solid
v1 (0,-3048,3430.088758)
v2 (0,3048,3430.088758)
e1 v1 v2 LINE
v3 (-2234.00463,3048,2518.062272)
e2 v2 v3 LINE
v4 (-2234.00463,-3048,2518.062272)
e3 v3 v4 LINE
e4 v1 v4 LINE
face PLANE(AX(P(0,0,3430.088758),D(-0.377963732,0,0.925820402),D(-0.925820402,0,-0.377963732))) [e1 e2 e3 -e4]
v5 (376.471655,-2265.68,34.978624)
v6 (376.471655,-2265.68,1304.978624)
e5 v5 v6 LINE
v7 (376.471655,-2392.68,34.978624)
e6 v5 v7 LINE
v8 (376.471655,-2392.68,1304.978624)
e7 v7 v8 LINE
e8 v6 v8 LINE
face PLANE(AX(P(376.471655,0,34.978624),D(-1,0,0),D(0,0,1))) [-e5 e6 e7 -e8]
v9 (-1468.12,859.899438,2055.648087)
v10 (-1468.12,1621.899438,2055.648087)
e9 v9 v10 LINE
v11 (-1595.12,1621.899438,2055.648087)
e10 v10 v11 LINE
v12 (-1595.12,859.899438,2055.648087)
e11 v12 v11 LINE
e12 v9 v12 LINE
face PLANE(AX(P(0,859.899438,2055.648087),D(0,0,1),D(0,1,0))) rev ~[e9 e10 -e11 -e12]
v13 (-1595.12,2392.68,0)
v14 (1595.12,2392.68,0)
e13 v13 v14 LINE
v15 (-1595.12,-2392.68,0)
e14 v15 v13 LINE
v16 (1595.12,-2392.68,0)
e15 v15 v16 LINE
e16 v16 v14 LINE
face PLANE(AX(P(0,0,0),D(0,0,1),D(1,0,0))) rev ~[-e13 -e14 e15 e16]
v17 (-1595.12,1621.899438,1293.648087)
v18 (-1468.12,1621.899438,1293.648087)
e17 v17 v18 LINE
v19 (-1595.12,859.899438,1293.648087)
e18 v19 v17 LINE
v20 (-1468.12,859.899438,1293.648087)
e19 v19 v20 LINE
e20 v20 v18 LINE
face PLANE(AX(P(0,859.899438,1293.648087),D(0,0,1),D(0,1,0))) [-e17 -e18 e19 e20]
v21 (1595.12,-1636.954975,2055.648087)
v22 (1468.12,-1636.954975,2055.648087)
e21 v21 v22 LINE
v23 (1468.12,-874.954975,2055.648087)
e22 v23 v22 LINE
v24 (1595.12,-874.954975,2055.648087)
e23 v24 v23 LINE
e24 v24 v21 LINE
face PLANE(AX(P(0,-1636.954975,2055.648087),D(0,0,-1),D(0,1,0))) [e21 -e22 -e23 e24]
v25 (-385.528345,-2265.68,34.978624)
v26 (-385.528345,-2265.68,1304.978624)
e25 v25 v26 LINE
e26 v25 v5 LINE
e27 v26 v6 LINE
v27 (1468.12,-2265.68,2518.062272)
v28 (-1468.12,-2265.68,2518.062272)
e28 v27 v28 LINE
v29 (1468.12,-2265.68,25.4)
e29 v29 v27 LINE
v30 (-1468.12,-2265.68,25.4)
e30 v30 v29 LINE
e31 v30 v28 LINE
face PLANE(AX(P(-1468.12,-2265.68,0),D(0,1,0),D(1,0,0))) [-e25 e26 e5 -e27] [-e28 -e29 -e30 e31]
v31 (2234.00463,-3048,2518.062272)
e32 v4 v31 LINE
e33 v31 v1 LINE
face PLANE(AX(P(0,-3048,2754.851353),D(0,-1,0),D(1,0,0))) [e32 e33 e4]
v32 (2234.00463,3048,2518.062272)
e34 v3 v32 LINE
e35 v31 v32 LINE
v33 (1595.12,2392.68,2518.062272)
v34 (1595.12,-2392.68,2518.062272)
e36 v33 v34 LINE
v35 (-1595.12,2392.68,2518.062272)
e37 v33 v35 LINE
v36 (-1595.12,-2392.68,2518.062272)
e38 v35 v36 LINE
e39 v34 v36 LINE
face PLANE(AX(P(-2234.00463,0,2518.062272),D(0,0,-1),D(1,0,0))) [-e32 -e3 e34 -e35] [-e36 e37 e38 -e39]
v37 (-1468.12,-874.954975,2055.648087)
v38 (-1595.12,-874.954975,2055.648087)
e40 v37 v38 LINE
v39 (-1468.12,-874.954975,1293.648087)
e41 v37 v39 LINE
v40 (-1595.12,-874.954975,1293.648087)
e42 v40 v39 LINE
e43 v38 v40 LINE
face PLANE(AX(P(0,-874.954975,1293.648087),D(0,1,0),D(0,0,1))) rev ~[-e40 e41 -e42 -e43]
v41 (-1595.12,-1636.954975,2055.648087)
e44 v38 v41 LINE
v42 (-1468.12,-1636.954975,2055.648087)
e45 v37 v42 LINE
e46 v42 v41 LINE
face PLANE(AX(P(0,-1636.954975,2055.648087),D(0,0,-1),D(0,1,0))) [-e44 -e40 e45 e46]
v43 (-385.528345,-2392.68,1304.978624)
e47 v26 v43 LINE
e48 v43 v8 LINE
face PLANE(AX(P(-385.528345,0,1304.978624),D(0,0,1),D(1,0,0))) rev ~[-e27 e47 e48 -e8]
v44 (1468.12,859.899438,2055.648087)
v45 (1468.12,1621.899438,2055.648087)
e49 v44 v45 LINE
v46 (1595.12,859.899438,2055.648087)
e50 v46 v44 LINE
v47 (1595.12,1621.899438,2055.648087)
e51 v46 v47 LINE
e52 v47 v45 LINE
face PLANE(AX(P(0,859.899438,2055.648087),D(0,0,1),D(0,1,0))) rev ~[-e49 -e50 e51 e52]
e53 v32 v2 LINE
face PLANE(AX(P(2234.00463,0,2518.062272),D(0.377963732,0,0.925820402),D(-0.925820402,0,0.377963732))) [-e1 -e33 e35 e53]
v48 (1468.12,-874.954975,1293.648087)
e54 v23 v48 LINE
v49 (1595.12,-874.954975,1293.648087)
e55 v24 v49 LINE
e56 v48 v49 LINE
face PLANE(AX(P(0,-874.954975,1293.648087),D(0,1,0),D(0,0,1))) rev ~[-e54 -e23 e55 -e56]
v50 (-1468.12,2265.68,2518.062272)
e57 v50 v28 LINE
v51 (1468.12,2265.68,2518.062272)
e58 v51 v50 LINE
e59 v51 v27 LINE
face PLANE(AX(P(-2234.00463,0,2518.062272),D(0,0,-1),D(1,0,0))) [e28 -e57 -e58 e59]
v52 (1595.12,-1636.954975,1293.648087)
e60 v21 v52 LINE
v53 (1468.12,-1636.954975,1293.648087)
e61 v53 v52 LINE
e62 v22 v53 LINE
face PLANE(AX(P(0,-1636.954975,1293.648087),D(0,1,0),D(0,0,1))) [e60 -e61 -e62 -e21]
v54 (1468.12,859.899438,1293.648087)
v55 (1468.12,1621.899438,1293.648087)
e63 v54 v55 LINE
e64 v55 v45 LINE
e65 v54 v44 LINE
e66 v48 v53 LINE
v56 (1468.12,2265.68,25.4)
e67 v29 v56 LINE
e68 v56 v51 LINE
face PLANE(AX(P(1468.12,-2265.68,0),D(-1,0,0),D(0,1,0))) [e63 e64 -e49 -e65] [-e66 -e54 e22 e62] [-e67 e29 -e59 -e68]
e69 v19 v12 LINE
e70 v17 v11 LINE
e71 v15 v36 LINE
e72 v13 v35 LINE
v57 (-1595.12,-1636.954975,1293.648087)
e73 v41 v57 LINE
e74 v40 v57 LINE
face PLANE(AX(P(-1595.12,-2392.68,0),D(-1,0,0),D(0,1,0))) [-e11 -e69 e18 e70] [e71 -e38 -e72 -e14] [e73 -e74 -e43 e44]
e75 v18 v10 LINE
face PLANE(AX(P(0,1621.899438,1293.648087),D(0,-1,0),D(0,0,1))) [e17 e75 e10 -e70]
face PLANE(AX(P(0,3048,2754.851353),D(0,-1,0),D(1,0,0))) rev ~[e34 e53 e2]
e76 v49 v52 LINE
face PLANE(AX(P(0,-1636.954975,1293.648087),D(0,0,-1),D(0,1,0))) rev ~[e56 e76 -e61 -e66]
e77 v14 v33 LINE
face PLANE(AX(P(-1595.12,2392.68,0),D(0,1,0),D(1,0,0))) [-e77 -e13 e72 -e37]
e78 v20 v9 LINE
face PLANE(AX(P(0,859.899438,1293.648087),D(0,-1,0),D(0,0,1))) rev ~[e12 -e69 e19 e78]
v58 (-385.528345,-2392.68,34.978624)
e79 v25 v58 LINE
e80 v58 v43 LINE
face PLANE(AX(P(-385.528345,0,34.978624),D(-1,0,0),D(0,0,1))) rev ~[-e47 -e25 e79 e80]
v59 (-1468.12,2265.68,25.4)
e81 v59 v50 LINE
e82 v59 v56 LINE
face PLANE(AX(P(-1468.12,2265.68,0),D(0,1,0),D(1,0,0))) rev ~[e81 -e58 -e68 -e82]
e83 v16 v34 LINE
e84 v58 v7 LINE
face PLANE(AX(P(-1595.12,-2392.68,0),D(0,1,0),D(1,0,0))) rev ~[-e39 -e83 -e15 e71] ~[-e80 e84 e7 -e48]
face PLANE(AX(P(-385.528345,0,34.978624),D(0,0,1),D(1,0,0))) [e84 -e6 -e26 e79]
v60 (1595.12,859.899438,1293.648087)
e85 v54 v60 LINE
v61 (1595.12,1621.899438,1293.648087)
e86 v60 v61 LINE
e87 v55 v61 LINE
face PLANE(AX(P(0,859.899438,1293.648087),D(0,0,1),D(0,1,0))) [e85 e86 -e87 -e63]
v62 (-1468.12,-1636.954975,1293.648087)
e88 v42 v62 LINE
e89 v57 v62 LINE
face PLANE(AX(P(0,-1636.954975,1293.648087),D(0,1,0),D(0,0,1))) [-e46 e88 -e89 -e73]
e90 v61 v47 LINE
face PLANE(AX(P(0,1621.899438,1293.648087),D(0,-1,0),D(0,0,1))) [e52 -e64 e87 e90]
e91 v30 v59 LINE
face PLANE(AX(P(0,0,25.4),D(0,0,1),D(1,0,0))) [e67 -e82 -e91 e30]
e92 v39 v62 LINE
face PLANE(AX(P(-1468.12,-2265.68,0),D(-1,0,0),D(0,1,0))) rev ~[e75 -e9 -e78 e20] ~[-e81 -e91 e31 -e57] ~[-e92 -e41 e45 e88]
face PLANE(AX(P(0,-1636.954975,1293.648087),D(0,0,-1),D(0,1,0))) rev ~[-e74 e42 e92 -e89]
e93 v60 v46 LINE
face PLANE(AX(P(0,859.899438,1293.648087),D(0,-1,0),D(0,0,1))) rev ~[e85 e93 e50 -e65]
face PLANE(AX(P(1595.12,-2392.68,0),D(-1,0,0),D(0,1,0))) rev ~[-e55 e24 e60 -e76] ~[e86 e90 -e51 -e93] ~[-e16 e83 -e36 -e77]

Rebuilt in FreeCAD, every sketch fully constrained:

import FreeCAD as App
import Part
import Sketcher

V = App.Vector
Q = App.Units.Quantity


def add_polygon(sketch, points):
    """Adds a closed chain of lines whose ends are joined by coincident constraints."""
    first, n = sketch.GeometryCount, len(points)
    for a, b in zip(points, points[1:] + points[:1]):
        sketch.addGeometry(Part.LineSegment(App.Vector(*a, 0), App.Vector(*b, 0)), False)
    for i in range(n):
        sketch.addConstraint(Sketcher.Constraint("Coincident", first + i, 2, first + (i + 1) % n, 1))

doc = App.newDocument("Part")
body = doc.addObject("PartDesign::Body", "Body")

# Sketch on XY plane
sketch1 = body.newObject("Sketcher::SketchObject", "Sketch")
sketch1.AttachmentSupport = (doc.getObject("XY_Plane"), [""])
sketch1.MapMode = "FlatFace"
add_polygon(sketch1, [(-1595, 2393), (-1595, -2393), (1595, -2393), (1595, 2393)])  # lines 0-3
add_polygon(sketch1, [(1468, -2266), (-1468, -2266), (-1468, 2266), (1468, 2266)])  # lines 4-7
sketch1.addConstraint(Sketcher.Constraint("Vertical", 0))
sketch1.addConstraint(Sketcher.Constraint("Horizontal", 1))
sketch1.addConstraint(Sketcher.Constraint("Vertical", 2))
sketch1.addConstraint(Sketcher.Constraint("Horizontal", 3))
sketch1.addConstraint(Sketcher.Constraint("Horizontal", 4))
sketch1.addConstraint(Sketcher.Constraint("Vertical", 5))
sketch1.addConstraint(Sketcher.Constraint("Horizontal", 6))
sketch1.addConstraint(Sketcher.Constraint("Vertical", 7))
sketch1.addConstraint(Sketcher.Constraint("Symmetric", 0, 2, 2, 2, -1, 1))
sketch1.addConstraint(Sketcher.Constraint("Symmetric", 4, 2, 6, 2, -1, 1))
sketch1.addConstraint(Sketcher.Constraint("DistanceX", 1, 1, 1, 2, Q("125.6 in")))
sketch1.addConstraint(Sketcher.Constraint("DistanceX", 4, 2, 4, 1, Q("115.6 in")))
sketch1.addConstraint(Sketcher.Constraint("DistanceY", 0, 2, 0, 1, Q("188.4 in")))
sketch1.addConstraint(Sketcher.Constraint("DistanceY", 5, 1, 5, 2, Q("178.4 in")))
pad1 = body.newObject("PartDesign::Pad", "Pad")
pad1.Profile = sketch1
pad1.Length = Q("100 in")

# Sketch on XY plane
sketch2 = body.newObject("Sketcher::SketchObject", "Sketch001")
sketch2.AttachmentSupport = (doc.getObject("XY_Plane"), [""])
sketch2.MapMode = "FlatFace"
add_polygon(sketch2, [(-1468, 2266), (-1468, -2266), (1468, -2266), (1468, 2266)])  # lines 0-3
sketch2.addConstraint(Sketcher.Constraint("Vertical", 0))
sketch2.addConstraint(Sketcher.Constraint("Horizontal", 1))
sketch2.addConstraint(Sketcher.Constraint("Vertical", 2))
sketch2.addConstraint(Sketcher.Constraint("Horizontal", 3))
sketch2.addConstraint(Sketcher.Constraint("Symmetric", 0, 2, 2, 2, -1, 1))
sketch2.addConstraint(Sketcher.Constraint("DistanceX", 1, 1, 1, 2, Q("115.6 in")))
sketch2.addConstraint(Sketcher.Constraint("DistanceY", 0, 2, 0, 1, Q("178.4 in")))
pad2 = body.newObject("PartDesign::Pad", "Pad001")
pad2.Profile = sketch2
pad2.Length = Q("1 in")

# Sketch on XZ plane
sketch3 = body.newObject("Sketcher::SketchObject", "Sketch002")
sketch3.AttachmentSupport = (doc.getObject("XZ_Plane"), [""])
sketch3.MapMode = "FlatFace"
add_polygon(sketch3, [(0, 3430), (-2234, 2518), (2234, 2518)])  # lines 0-2
sketch3.addConstraint(Sketcher.Constraint("Horizontal", 1))
sketch3.addConstraint(Sketcher.Constraint("PointOnObject", 2, 2, -2))
sketch3.addConstraint(Sketcher.Constraint("Equal", 0, 2))
sketch3.addConstraint(Sketcher.Constraint("Distance", 0, Q("95 in")))
sketch3.addConstraint(Sketcher.Constraint("DistanceX", 1, 1, 1, 2, 4468.00926))
sketch3.addConstraint(Sketcher.Constraint("DistanceY", -1, 1, 0, 2, 2518.062272))
pad3 = body.newObject("PartDesign::Pad", "Pad002")
pad3.Profile = sketch3
pad3.Length = Q("240 in")
pad3.Midplane = True

# Sketch on XZ plane
sketch4 = body.newObject("Sketcher::SketchObject", "Sketch003")
sketch4.AttachmentSupport = (doc.getObject("XZ_Plane"), [""])
sketch4.MapMode = "FlatFace"
add_polygon(sketch4, [(-386, 1305), (-386, 35), (376, 35), (376, 1305)])  # lines 0-3
sketch4.addConstraint(Sketcher.Constraint("Vertical", 0))
sketch4.addConstraint(Sketcher.Constraint("Horizontal", 1))
sketch4.addConstraint(Sketcher.Constraint("Vertical", 2))
sketch4.addConstraint(Sketcher.Constraint("Horizontal", 3))
sketch4.addConstraint(Sketcher.Constraint("DistanceX", 1, 1, 1, 2, Q("30 in")))
sketch4.addConstraint(Sketcher.Constraint("DistanceY", 0, 2, 0, 1, Q("50 in")))
sketch4.addConstraint(Sketcher.Constraint("DistanceX", 0, 2, -1, 1, 385.528345))
sketch4.addConstraint(Sketcher.Constraint("DistanceY", -1, 1, 0, 2, 34.978624))
pocket1 = body.newObject("PartDesign::Pocket", "Pocket")
pocket1.Profile = sketch4
pocket1.Length = Q("500 in")
pocket1.Reversed = True

# Sketch on YZ plane
sketch5 = body.newObject("Sketcher::SketchObject", "Sketch004")
sketch5.AttachmentSupport = (doc.getObject("YZ_Plane"), [""])
sketch5.MapMode = "FlatFace"
add_polygon(sketch5, [(860, 2056), (860, 1294), (1622, 1294), (1622, 2056)])  # lines 0-3
add_polygon(sketch5, [(-1637, 2056), (-1637, 1294), (-875, 1294), (-875, 2056)])  # lines 4-7
sketch5.addConstraint(Sketcher.Constraint("Vertical", 0))
sketch5.addConstraint(Sketcher.Constraint("Horizontal", 1))
sketch5.addConstraint(Sketcher.Constraint("Vertical", 2))
sketch5.addConstraint(Sketcher.Constraint("Horizontal", 3))
sketch5.addConstraint(Sketcher.Constraint("Vertical", 4))
sketch5.addConstraint(Sketcher.Constraint("Horizontal", 5))
sketch5.addConstraint(Sketcher.Constraint("Vertical", 6))
sketch5.addConstraint(Sketcher.Constraint("Horizontal", 7))
sketch5.addConstraint(Sketcher.Constraint("Horizontal", 1, 2, 4, 2))
sketch5.addConstraint(Sketcher.Constraint("Horizontal", 3, 2, 6, 2))
sketch5.addConstraint(Sketcher.Constraint("Equal", 3, 5))
sketch5.addConstraint(Sketcher.Constraint("Equal", 7, 0))
sketch5.addConstraint(Sketcher.Constraint("DistanceX", 1, 1, 1, 2, Q("30 in")))
sketch5.addConstraint(Sketcher.Constraint("DistanceX", -1, 1, 0, 2, 859.899438))
sketch5.addConstraint(Sketcher.Constraint("DistanceY", -1, 1, 0, 2, 1293.648087))
sketch5.addConstraint(Sketcher.Constraint("DistanceX", 4, 2, -1, 1, 1636.954975))
pocket2 = body.newObject("PartDesign::Pocket", "Pocket001")
pocket2.Profile = sketch5
pocket2.Length = Q("300 in")
pocket2.Midplane = True

doc.recompute()
